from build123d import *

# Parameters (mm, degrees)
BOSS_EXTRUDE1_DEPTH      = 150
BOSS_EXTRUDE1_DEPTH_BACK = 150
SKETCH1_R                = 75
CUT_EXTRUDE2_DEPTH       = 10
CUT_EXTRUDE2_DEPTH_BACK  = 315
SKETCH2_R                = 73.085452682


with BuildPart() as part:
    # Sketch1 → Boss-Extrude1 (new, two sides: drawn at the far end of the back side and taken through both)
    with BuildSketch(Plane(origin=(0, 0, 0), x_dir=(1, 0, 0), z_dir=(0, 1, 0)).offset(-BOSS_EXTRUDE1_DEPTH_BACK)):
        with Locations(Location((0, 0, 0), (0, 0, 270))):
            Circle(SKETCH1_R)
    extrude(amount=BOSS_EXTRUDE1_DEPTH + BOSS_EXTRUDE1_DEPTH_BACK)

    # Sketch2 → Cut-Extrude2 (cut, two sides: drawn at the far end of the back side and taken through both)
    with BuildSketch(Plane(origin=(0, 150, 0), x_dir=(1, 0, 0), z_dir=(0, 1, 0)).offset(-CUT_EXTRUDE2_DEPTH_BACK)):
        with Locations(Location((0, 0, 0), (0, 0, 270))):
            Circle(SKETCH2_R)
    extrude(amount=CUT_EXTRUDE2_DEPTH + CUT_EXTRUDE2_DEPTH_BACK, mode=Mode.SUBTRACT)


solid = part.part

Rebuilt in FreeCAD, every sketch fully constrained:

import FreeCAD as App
import Part
import Sketcher
Q = App.Units.Quantity

doc = App.newDocument("Part")
body = doc.addObject("PartDesign::Body", "Body")

sketch1 = body.newObject("Sketcher::SketchObject", "Sketch")
sketch1.AttachmentSupport = (doc.getObject("XZ_Plane"), [""])
sketch1.MapMode = "FlatFace"
sketch1.addGeometry(Part.Circle(App.Vector(0, 0, 0), App.Vector(0, 0, 1), 75), False)
sketch1.addConstraint([
    Sketcher.Constraint("Coincident", 0, 3, -1, 1),
    Sketcher.Constraint("Diameter", 0, Q("150 mm")),
])
pad1 = body.newObject("PartDesign::Pad", "Pad")
pad1.Profile = sketch1
pad1.Type = "TwoLengths"
pad1.Length = 150
pad1.Length2 = 150
pad1.Reversed = True

sketch2 = body.newObject("Sketcher::SketchObject", "Sketch001")
sketch2.AttachmentSupport = (doc.getObject("XZ_Plane"), [""])
sketch2.MapMode = "FlatFace"
sketch2.AttachmentOffset = App.Placement(App.Vector(0, 0, -150), App.Rotation())
sketch2.addGeometry(Part.Circle(App.Vector(0, 0, 0), App.Vector(0, 0, 1), 73), False)
sketch2.addConstraint([
    Sketcher.Constraint("Coincident", 0, 3, -1, 1),
    Sketcher.Constraint("Diameter", 0, Q("146.170905 mm")),
])
pocket1 = body.newObject("PartDesign::Pocket", "Pocket")
pocket1.Profile = sketch2
pocket1.Type = "ThroughAll"
pocket1.Midplane = True

doc.recompute()
